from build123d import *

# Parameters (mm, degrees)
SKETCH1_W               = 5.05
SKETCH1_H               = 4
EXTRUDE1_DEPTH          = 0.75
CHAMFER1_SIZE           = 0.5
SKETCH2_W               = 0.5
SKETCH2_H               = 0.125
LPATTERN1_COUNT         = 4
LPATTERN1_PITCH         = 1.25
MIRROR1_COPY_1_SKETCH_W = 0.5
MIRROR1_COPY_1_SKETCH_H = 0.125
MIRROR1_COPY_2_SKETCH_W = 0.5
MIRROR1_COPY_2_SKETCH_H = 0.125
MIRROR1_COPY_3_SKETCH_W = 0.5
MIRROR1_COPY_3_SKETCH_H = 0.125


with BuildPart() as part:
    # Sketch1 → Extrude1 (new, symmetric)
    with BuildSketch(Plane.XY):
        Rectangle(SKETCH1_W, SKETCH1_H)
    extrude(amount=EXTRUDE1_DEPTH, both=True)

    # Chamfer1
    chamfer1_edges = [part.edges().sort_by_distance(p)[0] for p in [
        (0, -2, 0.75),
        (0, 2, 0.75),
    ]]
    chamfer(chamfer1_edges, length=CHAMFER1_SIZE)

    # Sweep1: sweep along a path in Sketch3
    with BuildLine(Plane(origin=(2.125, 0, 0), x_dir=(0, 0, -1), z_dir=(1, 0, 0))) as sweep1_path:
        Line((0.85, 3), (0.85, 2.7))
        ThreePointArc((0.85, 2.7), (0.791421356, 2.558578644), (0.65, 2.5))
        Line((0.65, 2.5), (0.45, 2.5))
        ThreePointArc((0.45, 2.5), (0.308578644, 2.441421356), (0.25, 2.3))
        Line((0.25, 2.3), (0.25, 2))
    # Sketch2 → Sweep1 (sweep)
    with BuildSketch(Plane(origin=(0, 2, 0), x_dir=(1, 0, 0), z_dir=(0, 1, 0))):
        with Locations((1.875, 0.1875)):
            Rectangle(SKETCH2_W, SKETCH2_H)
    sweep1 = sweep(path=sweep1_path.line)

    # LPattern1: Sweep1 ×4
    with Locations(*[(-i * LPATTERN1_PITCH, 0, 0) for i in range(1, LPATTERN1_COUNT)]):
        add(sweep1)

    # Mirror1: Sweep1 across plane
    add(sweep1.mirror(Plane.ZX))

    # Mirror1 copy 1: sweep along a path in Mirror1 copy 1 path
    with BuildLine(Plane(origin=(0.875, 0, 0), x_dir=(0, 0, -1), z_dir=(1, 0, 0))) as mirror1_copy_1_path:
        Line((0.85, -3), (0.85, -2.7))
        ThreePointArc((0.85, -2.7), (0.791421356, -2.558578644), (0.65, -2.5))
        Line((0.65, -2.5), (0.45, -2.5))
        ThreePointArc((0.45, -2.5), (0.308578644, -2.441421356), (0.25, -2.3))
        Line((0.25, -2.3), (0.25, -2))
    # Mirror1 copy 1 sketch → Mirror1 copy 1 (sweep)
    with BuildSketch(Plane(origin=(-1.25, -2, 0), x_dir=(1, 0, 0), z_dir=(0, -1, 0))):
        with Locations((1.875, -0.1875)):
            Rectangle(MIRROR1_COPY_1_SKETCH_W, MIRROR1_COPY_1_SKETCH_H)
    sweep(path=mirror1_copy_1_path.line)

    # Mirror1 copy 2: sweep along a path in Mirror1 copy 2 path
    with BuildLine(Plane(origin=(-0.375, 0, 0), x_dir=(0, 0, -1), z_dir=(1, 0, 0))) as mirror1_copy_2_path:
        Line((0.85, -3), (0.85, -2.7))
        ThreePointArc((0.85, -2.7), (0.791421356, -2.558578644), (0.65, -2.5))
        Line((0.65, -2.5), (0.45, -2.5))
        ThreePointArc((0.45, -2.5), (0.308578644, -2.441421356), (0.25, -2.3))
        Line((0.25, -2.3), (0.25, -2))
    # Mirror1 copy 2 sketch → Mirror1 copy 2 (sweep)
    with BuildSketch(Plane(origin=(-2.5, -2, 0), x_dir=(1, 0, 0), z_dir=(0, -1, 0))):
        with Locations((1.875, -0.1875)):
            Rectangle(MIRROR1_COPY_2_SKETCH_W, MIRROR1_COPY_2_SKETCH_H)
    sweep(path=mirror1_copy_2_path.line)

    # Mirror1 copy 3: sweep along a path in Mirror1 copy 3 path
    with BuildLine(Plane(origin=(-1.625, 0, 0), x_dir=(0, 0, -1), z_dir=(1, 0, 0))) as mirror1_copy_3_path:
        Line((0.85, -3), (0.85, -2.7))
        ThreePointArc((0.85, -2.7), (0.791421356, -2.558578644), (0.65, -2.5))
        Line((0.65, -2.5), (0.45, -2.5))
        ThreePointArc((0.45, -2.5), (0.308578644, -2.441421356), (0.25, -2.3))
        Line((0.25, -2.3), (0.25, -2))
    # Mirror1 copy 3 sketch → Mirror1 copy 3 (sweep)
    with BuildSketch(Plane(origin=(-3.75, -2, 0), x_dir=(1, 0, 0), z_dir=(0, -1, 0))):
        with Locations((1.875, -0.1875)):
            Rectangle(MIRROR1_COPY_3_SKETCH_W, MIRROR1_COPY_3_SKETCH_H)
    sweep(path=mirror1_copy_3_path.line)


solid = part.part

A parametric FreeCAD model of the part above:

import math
import FreeCAD as App
import Part
import Sketcher
from FreeCAD import Vector
Q = App.Units.Quantity


def edges_at(feature, points):
    """Names of the edges that pass closest to the given points."""
    edges = feature.Shape.Edges
    near = lambda p: min(range(len(edges)), key=lambda i: edges[i].distToShape(Part.Vertex(*p))[0])
    return sorted({f"Edge{near(p) + 1}" for p in points})


def add_polygon(sketch, points):
    """Adds a closed chain of lines whose ends are joined by coincident constraints."""
    first, n = sketch.GeometryCount, len(points)
    for a, b in zip(points, points[1:] + points[:1]):
        sketch.addGeometry(Part.LineSegment(App.Vector(*a, 0), App.Vector(*b, 0)), False)
    for i in range(n):
        sketch.addConstraint(Sketcher.Constraint("Coincident", first + i, 2, first + (i + 1) % n, 1))

doc = App.newDocument("Part")
body = doc.addObject("PartDesign::Body", "Body")

sketch1 = body.newObject("Sketcher::SketchObject", "Sketch")
sketch1.AttachmentSupport = (doc.getObject("XY_Plane"), [""])
sketch1.MapMode = "FlatFace"
add_polygon(sketch1, [(-2.5, 2), (-2.5, -2), (2.5, -2), (2.5, 2)])
sketch1.addConstraint([
    Sketcher.Constraint("Vertical", 0),
    Sketcher.Constraint("Horizontal", 1),
    Sketcher.Constraint("Vertical", 2),
    Sketcher.Constraint("Horizontal", 3),
    Sketcher.Constraint("Symmetric", 0, 2, 2, 2, -1, 1),
    Sketcher.Constraint("DistanceY", 0, 2, 0, 1, Q("4 mm")),
    Sketcher.Constraint("DistanceX", 1, 1, 1, 2, Q("5.05 mm")),
])
pad1 = body.newObject("PartDesign::Pad", "Pad")
pad1.Profile = sketch1
pad1.Length = 1.5
pad1.Midplane = True
doc.recompute()

chamfer = body.newObject("PartDesign::Chamfer", "Chamfer")
chamfer.Base = (pad1, edges_at(pad1, [(0, -2, 0.75), (0, 2, 0.75)]))
chamfer.Size = 0.5

sketch2 = body.newObject("Sketcher::SketchObject", "Sketch001")
sketch2.AttachmentSupport = (doc.getObject("XZ_Plane"), [""])
sketch2.MapMode = "FlatFace"
sketch2.AttachmentOffset = App.Placement(Vector(0, 0, -2), App.Rotation())
add_polygon(sketch2, [(1.62, -0.25), (1.62, -0.12), (2.12, -0.12), (2.12, -0.25)])
sketch2.addConstraint([
    Sketcher.Constraint("Vertical", 0),
    Sketcher.Constraint("Horizontal", 1),
    Sketcher.Constraint("Vertical", 2),
    Sketcher.Constraint("Horizontal", 3),
    Sketcher.Constraint("DistanceX", 1, 1, 1, 2, Q("0.5 mm")),
    Sketcher.Constraint("DistanceY", 0, 1, 0, 2, Q("0.125 mm")),
    Sketcher.Constraint("DistanceY", 2, 2, -1, 1, Q("0.25 mm")),
    Sketcher.Constraint("DistanceX", -1, 1, 0, 2, Q("1.625 mm")),
])

sketch3 = body.newObject("Sketcher::SketchObject", "Sketch002")
sketch3.AttachmentSupport = (doc.getObject("YZ_Plane"), [""])
sketch3.MapMode = "FlatFace"
sketch3.AttachmentOffset = App.Placement(Vector(0, 0, 2.125), App.Rotation())
sketch3.addGeometry([
    Part.LineSegment(Vector(3, -0.85, 0), Vector(2.7, -0.85, 0)),
    Part.ArcOfCircle(Part.Circle(Vector(2.7, -0.65, 0), Vector(0, 0, 1), 0.2), math.radians(-180), math.radians(-90)),
    Part.LineSegment(Vector(2.5, -0.65, 0), Vector(2.5, -0.45, 0)),
    Part.ArcOfCircle(Part.Circle(Vector(2.3, -0.45, 0), Vector(0, 0, 1), 0.2), math.radians(0), math.radians(90)),
    Part.LineSegment(Vector(2.3, -0.25, 0), Vector(2, -0.25, 0)),
], False)
sketch3.addConstraint([
    Sketcher.Constraint("Tangent", 0, 2, 1, 2),
    Sketcher.Constraint("Tangent", 1, 1, 2, 1),
    Sketcher.Constraint("Tangent", 2, 2, 3, 1),
    Sketcher.Constraint("Tangent", 3, 2, 4, 1),
    Sketcher.Constraint("Horizontal", 0),
    Sketcher.Constraint("Vertical", 2),
    Sketcher.Constraint("Horizontal", 4),
    Sketcher.Constraint("Equal", 1, 3),
    Sketcher.Constraint("Equal", 0, 4),
    Sketcher.Constraint("Radius", 1, Q("0.2 mm")),
    Sketcher.Constraint("DistanceX", 0, 2, 0, 1, Q("0.3 mm")),
    Sketcher.Constraint("DistanceY", 2, 1, 2, 2, Q("0.2 mm")),
    Sketcher.Constraint("DistanceX", -1, 1, 0, 1, Q("3 mm")),
    Sketcher.Constraint("DistanceY", 1, 3, -1, 1, Q("0.65 mm")),
])
doc.recompute()

additivepipe = body.newObject("PartDesign::AdditivePipe", "AdditivePipe")
additivepipe.Profile = sketch2
additivepipe.Spine = (sketch3, ["Edge1", "Edge2", "Edge3", "Edge4", "Edge5"])
doc.recompute()

linearpattern = body.newObject("PartDesign::LinearPattern", "LinearPattern")
linearpattern.Originals = [additivepipe]
linearpattern.Direction = (doc.getObject("X_Axis"), [""])
linearpattern.Mode = "offset"
linearpattern.Offset = 1.25
linearpattern.Occurrences = 4
linearpattern.Reversed = True
body.Tip = linearpattern
doc.recompute()

mirrored = body.newObject("PartDesign::Mirrored", "Mirrored")
mirrored.Originals = [additivepipe]
mirrored.MirrorPlane = (doc.getObject("XZ_Plane"), [""])
body.Tip = mirrored

sketch4 = body.newObject("Sketcher::SketchObject", "Sketch003")
sketch4.AttachmentSupport = (doc.getObject("XZ_Plane"), [""])
sketch4.MapMode = "FlatFace"
sketch4.AttachmentOffset = App.Placement(Vector(0, 0, 2), App.Rotation())
add_polygon(sketch4, [(0.38, -0.12), (0.38, -0.25), (0.88, -0.25), (0.88, -0.12)])
sketch4.addConstraint([
    Sketcher.Constraint("Vertical", 0),
    Sketcher.Constraint("Horizontal", 1),
    Sketcher.Constraint("Vertical", 2),
    Sketcher.Constraint("Horizontal", 3),
    Sketcher.Constraint("DistanceX", 1, 1, 1, 2, Q("0.5 mm")),
    Sketcher.Constraint("DistanceY", 0, 2, 0, 1, Q("0.125 mm")),
    Sketcher.Constraint("DistanceY", 0, 2, -1, 1, Q("0.25 mm")),
    Sketcher.Constraint("DistanceX", -1, 1, 0, 2, Q("0.375 mm")),
])

sketch5 = body.newObject("Sketcher::SketchObject", "Sketch004")
sketch5.AttachmentSupport = (doc.getObject("YZ_Plane"), [""])
sketch5.MapMode = "FlatFace"
sketch5.AttachmentOffset = App.Placement(Vector(0, 0, 0.875), App.Rotation())
sketch5.addGeometry([
    Part.LineSegment(Vector(-3, -0.85, 0), Vector(-2.7, -0.85, 0)),
    Part.ArcOfCircle(Part.Circle(Vector(-2.7, -0.65, 0), Vector(0, 0, 1), 0.2), math.radians(-90), math.radians(0)),
    Part.LineSegment(Vector(-2.5, -0.65, 0), Vector(-2.5, -0.45, 0)),
    Part.ArcOfCircle(Part.Circle(Vector(-2.3, -0.45, 0), Vector(0, 0, 1), 0.2), math.radians(90), math.radians(180)),
    Part.LineSegment(Vector(-2.3, -0.25, 0), Vector(-2, -0.25, 0)),
], False)
sketch5.addConstraint([
    Sketcher.Constraint("Tangent", 0, 2, 1, 1),
    Sketcher.Constraint("Tangent", 1, 2, 2, 1),
    Sketcher.Constraint("Tangent", 2, 2, 3, 2),
    Sketcher.Constraint("Tangent", 3, 1, 4, 1),
    Sketcher.Constraint("Horizontal", 0),
    Sketcher.Constraint("Vertical", 2),
    Sketcher.Constraint("Horizontal", 4),
    Sketcher.Constraint("Equal", 1, 3),
    Sketcher.Constraint("Equal", 0, 4),
    Sketcher.Constraint("Radius", 1, Q("0.2 mm")),
    Sketcher.Constraint("DistanceX", 0, 1, 0, 2, Q("0.3 mm")),
    Sketcher.Constraint("DistanceY", 2, 1, 2, 2, Q("0.2 mm")),
    Sketcher.Constraint("DistanceX", 0, 1, -1, 1, Q("3 mm")),
    Sketcher.Constraint("DistanceY", 1, 3, -1, 1, Q("0.65 mm")),
])
doc.recompute()

additivepipe2 = body.newObject("PartDesign::AdditivePipe", "AdditivePipe001")
additivepipe2.Profile = sketch4
additivepipe2.Spine = (sketch5, ["Edge1", "Edge2", "Edge3", "Edge4", "Edge5"])

sketch6 = body.newObject("Sketcher::SketchObject", "Sketch005")
sketch6.AttachmentSupport = (doc.getObject("XZ_Plane"), [""])
sketch6.MapMode = "FlatFace"
sketch6.AttachmentOffset = App.Placement(Vector(0, 0, 2), App.Rotation())
add_polygon(sketch6, [(-0.88, -0.12), (-0.88, -0.25), (-0.38, -0.25), (-0.38, -0.12)])
sketch6.addConstraint([
    Sketcher.Constraint("Vertical", 0),
    Sketcher.Constraint("Horizontal", 1),
    Sketcher.Constraint("Vertical", 2),
    Sketcher.Constraint("Horizontal", 3),
    Sketcher.Constraint("DistanceX", 1, 1, 1, 2, Q("0.5 mm")),
    Sketcher.Constraint("DistanceY", 0, 2, 0, 1, Q("0.125 mm")),
    Sketcher.Constraint("DistanceY", 0, 2, -1, 1, Q("0.25 mm")),
    Sketcher.Constraint("DistanceX", 0, 2, -1, 1, Q("0.875 mm")),
])

sketch7 = body.newObject("Sketcher::SketchObject", "Sketch006")
sketch7.AttachmentSupport = (doc.getObject("YZ_Plane"), [""])
sketch7.MapMode = "FlatFace"
sketch7.AttachmentOffset = App.Placement(Vector(0, 0, -0.375), App.Rotation())
sketch7.addGeometry([
    Part.LineSegment(Vector(-3, -0.85, 0), Vector(-2.7, -0.85, 0)),
    Part.ArcOfCircle(Part.Circle(Vector(-2.7, -0.65, 0), Vector(0, 0, 1), 0.2), math.radians(-90), math.radians(0)),
    Part.LineSegment(Vector(-2.5, -0.65, 0), Vector(-2.5, -0.45, 0)),
    Part.ArcOfCircle(Part.Circle(Vector(-2.3, -0.45, 0), Vector(0, 0, 1), 0.2), math.radians(90), math.radians(180)),
    Part.LineSegment(Vector(-2.3, -0.25, 0), Vector(-2, -0.25, 0)),
], False)
sketch7.addConstraint([
    Sketcher.Constraint("Tangent", 0, 2, 1, 1),
    Sketcher.Constraint("Tangent", 1, 2, 2, 1),
    Sketcher.Constraint("Tangent", 2, 2, 3, 2),
    Sketcher.Constraint("Tangent", 3, 1, 4, 1),
    Sketcher.Constraint("Horizontal", 0),
    Sketcher.Constraint("Vertical", 2),
    Sketcher.Constraint("Horizontal", 4),
    Sketcher.Constraint("Equal", 1, 3),
    Sketcher.Constraint("Equal", 0, 4),
    Sketcher.Constraint("Radius", 1, Q("0.2 mm")),
    Sketcher.Constraint("DistanceX", 0, 1, 0, 2, Q("0.3 mm")),
    Sketcher.Constraint("DistanceY", 2, 1, 2, 2, Q("0.2 mm")),
    Sketcher.Constraint("DistanceX", 0, 1, -1, 1, Q("3 mm")),
    Sketcher.Constraint("DistanceY", 1, 3, -1, 1, Q("0.65 mm")),
])
doc.recompute()

additivepipe3 = body.newObject("PartDesign::AdditivePipe", "AdditivePipe002")
additivepipe3.Profile = sketch6
additivepipe3.Spine = (sketch7, ["Edge1", "Edge2", "Edge3", "Edge4", "Edge5"])

sketch8 = body.newObject("Sketcher::SketchObject", "Sketch007")
sketch8.AttachmentSupport = (doc.getObject("XZ_Plane"), [""])
sketch8.MapMode = "FlatFace"
sketch8.AttachmentOffset = App.Placement(Vector(0, 0, 2), App.Rotation())
add_polygon(sketch8, [(-2.12, -0.12), (-2.12, -0.25), (-1.62, -0.25), (-1.62, -0.12)])
sketch8.addConstraint([
    Sketcher.Constraint("Vertical", 0),
    Sketcher.Constraint("Horizontal", 1),
    Sketcher.Constraint("Vertical", 2),
    Sketcher.Constraint("Horizontal", 3),
    Sketcher.Constraint("DistanceX", 1, 1, 1, 2, Q("0.5 mm")),
    Sketcher.Constraint("DistanceY", 0, 2, 0, 1, Q("0.125 mm")),
    Sketcher.Constraint("DistanceY", 0, 2, -1, 1, Q("0.25 mm")),
    Sketcher.Constraint("DistanceX", 0, 2, -1, 1, Q("2.125 mm")),
])

sketch9 = body.newObject("Sketcher::SketchObject", "Sketch008")
sketch9.AttachmentSupport = (doc.getObject("YZ_Plane"), [""])
sketch9.MapMode = "FlatFace"
sketch9.AttachmentOffset = App.Placement(Vector(0, 0, -1.625), App.Rotation())
sketch9.addGeometry([
    Part.LineSegment(Vector(-3, -0.85, 0), Vector(-2.7, -0.85, 0)),
    Part.ArcOfCircle(Part.Circle(Vector(-2.7, -0.65, 0), Vector(0, 0, 1), 0.2), math.radians(-90), math.radians(0)),
    Part.LineSegment(Vector(-2.5, -0.65, 0), Vector(-2.5, -0.45, 0)),
    Part.ArcOfCircle(Part.Circle(Vector(-2.3, -0.45, 0), Vector(0, 0, 1), 0.2), math.radians(90), math.radians(180)),
    Part.LineSegment(Vector(-2.3, -0.25, 0), Vector(-2, -0.25, 0)),
], False)
sketch9.addConstraint([
    Sketcher.Constraint("Tangent", 0, 2, 1, 1),
    Sketcher.Constraint("Tangent", 1, 2, 2, 1),
    Sketcher.Constraint("Tangent", 2, 2, 3, 2),
    Sketcher.Constraint("Tangent", 3, 1, 4, 1),
    Sketcher.Constraint("Horizontal", 0),
    Sketcher.Constraint("Vertical", 2),
    Sketcher.Constraint("Horizontal", 4),
    Sketcher.Constraint("Equal", 1, 3),
    Sketcher.Constraint("Equal", 0, 4),
    Sketcher.Constraint("Radius", 1, Q("0.2 mm")),
    Sketcher.Constraint("DistanceX", 0, 1, 0, 2, Q("0.3 mm")),
    Sketcher.Constraint("DistanceY", 2, 1, 2, 2, Q("0.2 mm")),
    Sketcher.Constraint("DistanceX", 0, 1, -1, 1, Q("3 mm")),
    Sketcher.Constraint("DistanceY", 1, 3, -1, 1, Q("0.65 mm")),
])
doc.recompute()

additivepipe4 = body.newObject("PartDesign::AdditivePipe", "AdditivePipe003")
additivepipe4.Profile = sketch8
additivepipe4.Spine = (sketch9, ["Edge1", "Edge2", "Edge3", "Edge4", "Edge5"])

doc.recompute()
